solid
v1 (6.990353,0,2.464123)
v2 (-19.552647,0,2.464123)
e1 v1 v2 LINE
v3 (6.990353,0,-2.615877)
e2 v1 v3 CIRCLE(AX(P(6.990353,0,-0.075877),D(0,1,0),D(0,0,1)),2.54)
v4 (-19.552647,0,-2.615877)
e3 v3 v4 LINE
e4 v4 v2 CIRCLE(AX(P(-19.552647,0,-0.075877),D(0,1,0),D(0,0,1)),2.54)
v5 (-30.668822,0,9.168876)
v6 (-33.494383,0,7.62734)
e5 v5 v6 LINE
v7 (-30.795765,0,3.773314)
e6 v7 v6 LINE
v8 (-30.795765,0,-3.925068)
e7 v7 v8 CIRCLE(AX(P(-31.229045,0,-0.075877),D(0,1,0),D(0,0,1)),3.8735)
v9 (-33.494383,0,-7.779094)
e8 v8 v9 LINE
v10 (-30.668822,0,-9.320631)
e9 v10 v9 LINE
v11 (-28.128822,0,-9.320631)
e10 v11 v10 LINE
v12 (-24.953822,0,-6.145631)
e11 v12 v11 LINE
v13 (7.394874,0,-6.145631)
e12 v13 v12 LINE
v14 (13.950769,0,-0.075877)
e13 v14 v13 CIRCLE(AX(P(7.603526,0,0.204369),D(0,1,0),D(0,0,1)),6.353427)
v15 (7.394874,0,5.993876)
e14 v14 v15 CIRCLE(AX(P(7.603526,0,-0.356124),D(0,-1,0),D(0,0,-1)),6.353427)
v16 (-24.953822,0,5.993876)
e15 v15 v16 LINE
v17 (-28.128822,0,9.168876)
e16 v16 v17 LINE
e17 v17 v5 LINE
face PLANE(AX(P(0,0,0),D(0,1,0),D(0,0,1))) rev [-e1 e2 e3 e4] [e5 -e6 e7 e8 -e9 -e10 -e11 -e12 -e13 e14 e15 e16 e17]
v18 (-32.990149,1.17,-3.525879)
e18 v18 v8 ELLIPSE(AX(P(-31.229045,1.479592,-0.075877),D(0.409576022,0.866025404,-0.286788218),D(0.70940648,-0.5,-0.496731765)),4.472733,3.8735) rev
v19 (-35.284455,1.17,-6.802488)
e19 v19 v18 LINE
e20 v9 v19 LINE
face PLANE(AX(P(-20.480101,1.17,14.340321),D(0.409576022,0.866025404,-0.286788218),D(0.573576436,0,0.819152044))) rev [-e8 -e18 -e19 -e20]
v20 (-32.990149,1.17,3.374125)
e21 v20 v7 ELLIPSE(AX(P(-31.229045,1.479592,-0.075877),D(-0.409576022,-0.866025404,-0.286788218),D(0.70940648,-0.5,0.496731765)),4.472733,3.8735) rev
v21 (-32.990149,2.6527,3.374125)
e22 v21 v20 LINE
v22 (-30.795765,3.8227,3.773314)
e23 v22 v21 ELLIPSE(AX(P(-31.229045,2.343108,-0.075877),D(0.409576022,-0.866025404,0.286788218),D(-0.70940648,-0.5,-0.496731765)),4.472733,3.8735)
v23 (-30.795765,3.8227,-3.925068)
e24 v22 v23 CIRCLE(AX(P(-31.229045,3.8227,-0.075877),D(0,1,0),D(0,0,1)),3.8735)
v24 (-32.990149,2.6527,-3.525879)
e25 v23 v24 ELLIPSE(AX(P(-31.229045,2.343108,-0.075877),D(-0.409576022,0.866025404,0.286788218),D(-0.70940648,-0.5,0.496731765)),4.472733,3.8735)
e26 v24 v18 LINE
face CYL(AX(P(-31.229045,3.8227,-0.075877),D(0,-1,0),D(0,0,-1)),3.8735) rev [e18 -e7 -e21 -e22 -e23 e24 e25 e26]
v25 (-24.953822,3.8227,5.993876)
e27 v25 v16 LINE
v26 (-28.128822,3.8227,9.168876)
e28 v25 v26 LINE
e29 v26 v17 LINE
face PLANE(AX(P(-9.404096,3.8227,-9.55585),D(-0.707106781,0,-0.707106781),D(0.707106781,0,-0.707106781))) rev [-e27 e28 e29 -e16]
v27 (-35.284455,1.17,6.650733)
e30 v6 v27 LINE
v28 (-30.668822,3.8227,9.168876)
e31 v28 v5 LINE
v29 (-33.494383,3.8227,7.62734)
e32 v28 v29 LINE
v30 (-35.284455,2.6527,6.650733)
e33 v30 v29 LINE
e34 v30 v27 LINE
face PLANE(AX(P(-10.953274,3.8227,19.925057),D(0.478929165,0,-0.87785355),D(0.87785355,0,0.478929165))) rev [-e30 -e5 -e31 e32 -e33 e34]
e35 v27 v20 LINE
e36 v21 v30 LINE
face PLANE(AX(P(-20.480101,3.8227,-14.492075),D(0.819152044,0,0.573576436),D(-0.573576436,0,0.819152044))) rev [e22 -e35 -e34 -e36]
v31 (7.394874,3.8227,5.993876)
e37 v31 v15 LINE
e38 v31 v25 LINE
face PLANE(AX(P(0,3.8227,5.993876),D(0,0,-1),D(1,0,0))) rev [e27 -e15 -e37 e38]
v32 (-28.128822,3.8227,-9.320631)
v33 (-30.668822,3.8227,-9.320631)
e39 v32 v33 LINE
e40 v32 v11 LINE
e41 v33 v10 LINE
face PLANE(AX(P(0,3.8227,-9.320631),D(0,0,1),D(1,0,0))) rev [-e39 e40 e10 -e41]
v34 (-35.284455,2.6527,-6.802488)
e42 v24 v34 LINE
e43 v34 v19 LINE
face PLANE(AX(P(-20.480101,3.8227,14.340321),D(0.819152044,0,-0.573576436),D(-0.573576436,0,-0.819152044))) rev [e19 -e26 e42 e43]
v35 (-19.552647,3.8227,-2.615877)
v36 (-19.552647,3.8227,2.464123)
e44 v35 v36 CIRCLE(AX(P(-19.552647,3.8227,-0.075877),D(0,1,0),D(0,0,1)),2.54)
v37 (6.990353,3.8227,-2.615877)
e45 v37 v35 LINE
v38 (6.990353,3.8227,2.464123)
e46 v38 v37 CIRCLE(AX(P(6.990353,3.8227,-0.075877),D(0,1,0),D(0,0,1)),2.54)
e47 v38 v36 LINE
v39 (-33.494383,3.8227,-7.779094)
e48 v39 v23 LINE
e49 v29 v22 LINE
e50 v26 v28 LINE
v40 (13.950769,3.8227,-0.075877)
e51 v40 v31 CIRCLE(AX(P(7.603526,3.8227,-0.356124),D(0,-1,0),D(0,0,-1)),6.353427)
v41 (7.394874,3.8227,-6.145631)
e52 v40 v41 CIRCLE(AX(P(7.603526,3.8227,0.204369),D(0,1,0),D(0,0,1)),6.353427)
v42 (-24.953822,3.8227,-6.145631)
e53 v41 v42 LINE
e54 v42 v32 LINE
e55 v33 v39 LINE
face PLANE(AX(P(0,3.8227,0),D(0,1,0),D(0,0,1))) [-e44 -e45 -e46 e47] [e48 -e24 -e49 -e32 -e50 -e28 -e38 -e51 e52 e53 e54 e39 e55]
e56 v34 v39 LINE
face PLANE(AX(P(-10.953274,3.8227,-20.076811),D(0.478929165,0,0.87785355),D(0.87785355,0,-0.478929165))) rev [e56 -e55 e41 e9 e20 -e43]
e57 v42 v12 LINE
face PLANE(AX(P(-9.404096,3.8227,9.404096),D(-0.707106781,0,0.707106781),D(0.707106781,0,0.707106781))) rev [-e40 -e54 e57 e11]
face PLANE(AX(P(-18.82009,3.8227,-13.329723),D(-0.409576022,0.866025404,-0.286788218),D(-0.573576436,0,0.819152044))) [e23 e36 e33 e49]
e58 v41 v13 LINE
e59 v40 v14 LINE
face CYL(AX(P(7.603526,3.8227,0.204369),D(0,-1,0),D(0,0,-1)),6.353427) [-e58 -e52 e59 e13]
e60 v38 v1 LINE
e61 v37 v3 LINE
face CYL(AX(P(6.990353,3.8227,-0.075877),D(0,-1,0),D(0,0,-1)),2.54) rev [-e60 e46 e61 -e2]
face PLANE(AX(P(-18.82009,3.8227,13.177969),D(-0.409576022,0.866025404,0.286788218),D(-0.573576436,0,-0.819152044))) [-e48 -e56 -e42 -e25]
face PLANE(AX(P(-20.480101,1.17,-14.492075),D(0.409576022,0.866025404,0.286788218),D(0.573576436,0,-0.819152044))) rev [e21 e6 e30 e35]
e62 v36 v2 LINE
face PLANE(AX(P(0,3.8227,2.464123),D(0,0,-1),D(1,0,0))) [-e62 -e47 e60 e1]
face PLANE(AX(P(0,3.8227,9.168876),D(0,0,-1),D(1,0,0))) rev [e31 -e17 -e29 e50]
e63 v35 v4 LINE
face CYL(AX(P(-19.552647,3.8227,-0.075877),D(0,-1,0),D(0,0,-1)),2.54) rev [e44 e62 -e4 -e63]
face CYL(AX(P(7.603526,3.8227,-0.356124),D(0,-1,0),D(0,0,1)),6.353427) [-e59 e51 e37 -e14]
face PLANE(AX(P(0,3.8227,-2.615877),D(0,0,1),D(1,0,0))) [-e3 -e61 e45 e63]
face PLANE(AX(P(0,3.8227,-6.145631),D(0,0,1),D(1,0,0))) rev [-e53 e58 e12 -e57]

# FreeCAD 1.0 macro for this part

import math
import FreeCAD as App
import Part
import Sketcher
from FreeCAD import Vector
Q = App.Units.Quantity


def edges_at(feature, points):
    """Names of the edges that pass closest to the given points."""
    edges = feature.Shape.Edges
    near = lambda p: min(range(len(edges)), key=lambda i: edges[i].distToShape(Part.Vertex(*p))[0])
    return sorted({f"Edge{near(p) + 1}" for p in points})

doc = App.newDocument("Part")
body = doc.addObject("PartDesign::Body", "Body")

# Sketch on XZ plane
sketch1 = body.newObject("Sketcher::SketchObject", "Sketch")
sketch1.AttachmentSupport = (doc.getObject("XZ_Plane"), [""])
sketch1.MapMode = "FlatFace"
sketch1.addGeometry([
    Part.ArcOfCircle(Part.Circle(Vector(7.603526, 0.204369, 0), Vector(0, 0, 1), 6.353427), math.radians(-91.881979), math.radians(-2.528108)),  # 0
    Part.LineSegment(Vector(7.394874, -6.145631, 0), Vector(-24.953822, -6.145631, 0)),  # 1
    Part.LineSegment(Vector(-24.953822, -6.145631, 0), Vector(-28.128822, -9.320631, 0)),  # 2
    Part.LineSegment(Vector(-28.128822, -9.320631, 0), Vector(-30.668822, -9.320631, 0)),  # 3
    Part.LineSegment(Vector(-30.668822, -9.320631, 0), Vector(-35.284455, -6.802488, 0)),  # 4
    Part.LineSegment(Vector(-35.284455, -6.802488, 0), Vector(-32.990149, -3.525879, 0)),  # 5
    Part.ArcOfCircle(Part.Circle(Vector(-31.229045, -0.075877, 0), Vector(0, 0, 1), 3.8735), math.radians(-117.0427), math.radians(0)),  # 6
    Part.LineSegment(Vector(-27.355545, -0.075877, 0), Vector(-22.092647, -0.075877, 0)),  # 7
    Part.ArcOfCircle(Part.Circle(Vector(-19.552647, -0.075877, 0), Vector(0, 0, 1), 2.54), math.radians(180), math.radians(270)),  # 8
    Part.LineSegment(Vector(-19.552647, -2.615877, 0), Vector(6.990353, -2.615877, 0)),  # 9
    Part.ArcOfCircle(Part.Circle(Vector(6.990353, -0.075877, 0), Vector(0, 0, 1), 2.54), math.radians(-90), math.radians(0)),  # 10
    Part.LineSegment(Vector(9.530353, -0.075877, 0), Vector(13.950769, -0.075877, 0)),  # 11
], False)
sketch1.addConstraint([
    Sketcher.Constraint("Coincident", 0, 1, 1, 1),
    Sketcher.Constraint("Coincident", 1, 2, 2, 1),
    Sketcher.Constraint("Coincident", 2, 2, 3, 1),
    Sketcher.Constraint("Coincident", 3, 2, 4, 1),
    Sketcher.Constraint("Coincident", 4, 2, 5, 1),
    Sketcher.Constraint("Coincident", 5, 2, 6, 1),
    Sketcher.Constraint("Coincident", 6, 2, 7, 1),
    Sketcher.Constraint("Coincident", 7, 2, 8, 1),
    Sketcher.Constraint("Tangent", 8, 2, 9, 1),
    Sketcher.Constraint("Tangent", 9, 2, 10, 1),
    Sketcher.Constraint("Coincident", 10, 2, 11, 1),
    Sketcher.Constraint("Coincident", 11, 2, 0, 2),
    Sketcher.Constraint("Horizontal", 1),
    Sketcher.Constraint("Horizontal", 3),
    Sketcher.Constraint("Horizontal", 7),
    Sketcher.Constraint("Horizontal", 9),
    Sketcher.Constraint("Horizontal", 11),
    Sketcher.Constraint("Equal", 8, 10),
    Sketcher.Constraint("Horizontal", 6, 3, 8, 3),
    Sketcher.Constraint("Horizontal", 10, 3, 6, 2),
    Sketcher.Constraint("Horizontal", 7, 2, 10, 2),
    Sketcher.Constraint("Radius", 8, Q("0.1 in")),
    Sketcher.Constraint("DistanceX", 3, 2, 3, 1, Q("0.1 in")),
    Sketcher.Constraint("Angle", 2, Q("-135 deg")),
    Sketcher.Constraint("Angle", 5, Q("55 deg")),
    Sketcher.Constraint("Radius", 6, Q("0.1525 in")),
    Sketcher.Constraint("DistanceX", 9, 1, 9, 2, Q("1.045 in")),
    Sketcher.Constraint("DistanceY", 0, 1, 0, 3, Q("0.25 in")),
    Sketcher.Constraint("DistanceX", 2, 2, 1, 2, Q("0.125 in")),
    Sketcher.Constraint("DistanceX", 7, 1, 7, 2, 5.262898),
    Sketcher.Constraint("Radius", 0, 6.353427),
    Sketcher.Constraint("Distance", 5, 4.0),
    Sketcher.Constraint("Distance", 4, 5.257861),
    Sketcher.Constraint("DistanceX", 1, 2, 1, 1, 32.348696),
    Sketcher.Constraint("DistanceX", 11, 1, 11, 2, 4.420416),
    Sketcher.Constraint("DistanceY", -1, 1, 0, 3, 0.204369),
    Sketcher.Constraint("DistanceX", 5, 2, -1, 1, 32.990149),
    Sketcher.Constraint("DistanceY", 5, 2, -1, 1, 3.525879),
])
pad1 = body.newObject("PartDesign::Pad", "Pad")
pad1.Profile = sketch1
pad1.Length = Q("0.1505 in")
pad1.Reversed = True
doc.recompute()

chamfer = body.newObject("PartDesign::Chamfer", "Chamfer")
chamfer.Base = (pad1, edges_at(pad1, [(-34.137, 0, -5.164), (-34.137, 3.823, -5.164)]))
chamfer.ChamferType = "Two distances"
chamfer.Size = 1.17
chamfer.Size2 = 2.026499
body2 = doc.addObject("PartDesign::Body", "Body001")
doc.recompute()

body2.BaseFeature = body
doc.recompute()

mirroring = doc.addObject("Part::Mirroring", "Mirroring")
mirroring.Source = body
mirroring.Base = Vector(0, 3.8227, -0.075877)
mirroring.Normal = Vector(0, 0, 1)
body3 = doc.addObject("PartDesign::Body", "Body002")
body3.BaseFeature = mirroring
boolean = body2.newObject("PartDesign::Boolean", "Boolean")
boolean.Type = "Fuse"
boolean.addObjects([body3])
doc.recompute()
mirroring.Visibility = False

doc.recompute()
